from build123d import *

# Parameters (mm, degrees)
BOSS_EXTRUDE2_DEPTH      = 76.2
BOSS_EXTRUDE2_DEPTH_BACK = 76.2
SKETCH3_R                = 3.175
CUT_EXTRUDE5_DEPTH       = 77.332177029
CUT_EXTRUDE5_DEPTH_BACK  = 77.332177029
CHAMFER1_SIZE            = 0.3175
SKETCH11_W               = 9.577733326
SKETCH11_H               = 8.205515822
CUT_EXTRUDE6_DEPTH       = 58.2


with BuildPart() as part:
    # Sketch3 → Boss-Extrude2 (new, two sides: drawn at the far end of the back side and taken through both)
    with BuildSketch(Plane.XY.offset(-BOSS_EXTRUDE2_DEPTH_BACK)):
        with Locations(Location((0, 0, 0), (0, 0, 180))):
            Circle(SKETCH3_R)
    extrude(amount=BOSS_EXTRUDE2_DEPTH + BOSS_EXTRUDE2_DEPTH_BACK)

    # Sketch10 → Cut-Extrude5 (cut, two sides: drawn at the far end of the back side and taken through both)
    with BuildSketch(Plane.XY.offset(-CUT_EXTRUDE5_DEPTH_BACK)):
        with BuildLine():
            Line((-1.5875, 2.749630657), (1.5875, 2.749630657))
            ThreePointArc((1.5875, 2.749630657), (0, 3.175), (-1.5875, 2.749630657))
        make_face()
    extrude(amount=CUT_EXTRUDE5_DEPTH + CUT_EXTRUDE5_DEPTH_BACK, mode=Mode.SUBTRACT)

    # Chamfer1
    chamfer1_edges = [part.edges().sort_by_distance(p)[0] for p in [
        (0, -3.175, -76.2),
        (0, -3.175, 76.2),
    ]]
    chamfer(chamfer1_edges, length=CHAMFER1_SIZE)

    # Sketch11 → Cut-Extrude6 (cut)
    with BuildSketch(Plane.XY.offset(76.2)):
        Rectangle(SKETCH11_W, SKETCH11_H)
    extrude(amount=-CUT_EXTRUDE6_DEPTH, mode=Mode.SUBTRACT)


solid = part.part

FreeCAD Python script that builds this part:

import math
import FreeCAD as App
import Part
import Sketcher
from FreeCAD import Vector
Q = App.Units.Quantity


def edges_at(feature, points):
    """Names of the edges that pass closest to the given points."""
    edges = feature.Shape.Edges
    near = lambda p: min(range(len(edges)), key=lambda i: edges[i].distToShape(Part.Vertex(*p))[0])
    return sorted({f"Edge{near(p) + 1}" for p in points})


def add_polygon(sketch, points):
    """Adds a closed chain of lines whose ends are joined by coincident constraints."""
    first, n = sketch.GeometryCount, len(points)
    for a, b in zip(points, points[1:] + points[:1]):
        sketch.addGeometry(Part.LineSegment(App.Vector(*a, 0), App.Vector(*b, 0)), False)
    for i in range(n):
        sketch.addConstraint(Sketcher.Constraint("Coincident", first + i, 2, first + (i + 1) % n, 1))

doc = App.newDocument("Part")
body = doc.addObject("PartDesign::Body", "Body")

sketch1 = doc.addObject("Sketcher::SketchObject", "Sketch")
body.addObject(sketch1)
sketch1.AttachmentSupport = (doc.XY_Plane, [""])
sketch1.MapMode = "FlatFace"
sketch1.addGeometry(Part.Circle(Vector(0, 0, 0), Vector(0, 0, 1), 3.2), False)
sketch1.addConstraint(Sketcher.Constraint("Coincident", 0, 3, -1, 1))
sketch1.addConstraint(Sketcher.Constraint("Diameter", 0, Q("0.25 in")))
pad1 = doc.addObject("PartDesign::Pad", "Pad")
body.addObject(pad1)
pad1.Profile = sketch1
pad1.Type = "TwoLengths"
pad1.Length = Q("3 in")
pad1.Length2 = Q("3 in")

sketch2 = doc.addObject("Sketcher::SketchObject", "Sketch001")
body.addObject(sketch2)
sketch2.AttachmentSupport = (doc.XY_Plane, [""])
sketch2.MapMode = "FlatFace"
sketch2.addGeometry(Part.LineSegment(Vector(-1.6, 2.7, 0), Vector(1.6, 2.7, 0)), False)
sketch2.addGeometry(Part.ArcOfCircle(Part.Circle(Vector(0, 0, 0), Vector(0, 0, 1), 3.2), math.radians(60), math.radians(120)), False)
sketch2.addConstraint(Sketcher.Constraint("Coincident", 0, 1, 1, 2))
sketch2.addConstraint(Sketcher.Constraint("Coincident", 1, 1, 0, 2))
sketch2.addConstraint(Sketcher.Constraint("Horizontal", 0))
sketch2.addConstraint(Sketcher.Constraint("Coincident", 1, 3, -1, 1))
sketch2.addConstraint(Sketcher.Constraint("Radius", 1, Q("0.125 in")))
sketch2.addConstraint(Sketcher.Constraint("DistanceX", 0, 1, 0, 2, Q("0.125 in")))
pocket1 = doc.addObject("PartDesign::Pocket", "Pocket")
body.addObject(pocket1)
pocket1.Profile = sketch2
pocket1.Type = "ThroughAll"
pocket1.Midplane = True
doc.recompute()

chamfer = doc.addObject("PartDesign::Chamfer", "Chamfer")
body.addObject(chamfer)
chamfer.Base = (pocket1, edges_at(pocket1, [(0, -3.175, -76.2), (0, -3.175, 76.2)]))
chamfer.Size = Q("0.0125 in")

sketch3 = doc.addObject("Sketcher::SketchObject", "Sketch002")
body.addObject(sketch3)
sketch3.AttachmentSupport = (doc.XY_Plane, [""])
sketch3.MapMode = "FlatFace"
sketch3.AttachmentOffset = App.Placement(Vector(0, 0, 3 * 25.4), App.Rotation())
add_polygon(sketch3, [(-5, 4), (-5, -4), (5, -4), (5, 4)])
sketch3.addConstraint(Sketcher.Constraint("Vertical", 0))
sketch3.addConstraint(Sketcher.Constraint("Horizontal", 1))
sketch3.addConstraint(Sketcher.Constraint("Vertical", 2))
sketch3.addConstraint(Sketcher.Constraint("Horizontal", 3))
sketch3.addConstraint(Sketcher.Constraint("Symmetric", 0, 2, 2, 2, -1, 1))
sketch3.addConstraint(Sketcher.Constraint("DistanceX", 1, 1, 1, 2, Q("9.577733 mm")))
sketch3.addConstraint(Sketcher.Constraint("DistanceY", 0, 2, 0, 1, Q("8.205516 mm")))
pocket2 = doc.addObject("PartDesign::Pocket", "Pocket001")
body.addObject(pocket2)
pocket2.Profile = sketch3
pocket2.Length = 58.2

doc.recompute()
